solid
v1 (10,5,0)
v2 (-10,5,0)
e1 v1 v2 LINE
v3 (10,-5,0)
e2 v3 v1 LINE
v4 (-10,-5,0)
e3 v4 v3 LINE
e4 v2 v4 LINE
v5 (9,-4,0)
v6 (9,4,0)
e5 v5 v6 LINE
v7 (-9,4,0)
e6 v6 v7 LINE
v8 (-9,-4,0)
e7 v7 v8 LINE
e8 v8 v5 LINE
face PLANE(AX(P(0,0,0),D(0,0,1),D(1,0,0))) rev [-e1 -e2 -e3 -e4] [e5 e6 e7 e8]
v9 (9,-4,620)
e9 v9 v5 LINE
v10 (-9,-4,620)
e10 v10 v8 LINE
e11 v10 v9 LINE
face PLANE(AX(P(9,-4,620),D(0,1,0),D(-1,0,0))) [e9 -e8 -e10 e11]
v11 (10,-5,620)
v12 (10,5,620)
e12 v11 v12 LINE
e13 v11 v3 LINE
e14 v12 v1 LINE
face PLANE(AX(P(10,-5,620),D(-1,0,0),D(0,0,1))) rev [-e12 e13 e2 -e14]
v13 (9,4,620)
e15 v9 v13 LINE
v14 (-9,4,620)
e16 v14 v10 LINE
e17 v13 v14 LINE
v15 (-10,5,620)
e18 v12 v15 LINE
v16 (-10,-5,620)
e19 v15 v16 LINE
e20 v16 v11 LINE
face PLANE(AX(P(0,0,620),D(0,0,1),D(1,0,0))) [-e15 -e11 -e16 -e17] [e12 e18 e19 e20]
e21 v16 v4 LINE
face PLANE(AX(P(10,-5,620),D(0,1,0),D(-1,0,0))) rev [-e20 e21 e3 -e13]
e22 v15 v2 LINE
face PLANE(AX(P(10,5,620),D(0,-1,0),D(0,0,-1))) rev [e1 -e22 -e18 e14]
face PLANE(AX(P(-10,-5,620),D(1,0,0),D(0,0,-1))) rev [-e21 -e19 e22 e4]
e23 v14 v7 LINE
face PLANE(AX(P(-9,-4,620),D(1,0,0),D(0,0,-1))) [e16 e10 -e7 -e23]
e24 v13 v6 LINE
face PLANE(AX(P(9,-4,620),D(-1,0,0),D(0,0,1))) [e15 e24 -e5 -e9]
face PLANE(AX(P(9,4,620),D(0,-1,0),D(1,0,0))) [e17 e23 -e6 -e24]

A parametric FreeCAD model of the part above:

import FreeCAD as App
import Part
import Sketcher
from FreeCAD import Vector


def add_polygon(sketch, points):
    """Adds a closed chain of lines whose ends are joined by coincident constraints."""
    first, n = sketch.GeometryCount, len(points)
    for a, b in zip(points, points[1:] + points[:1]):
        sketch.addGeometry(Part.LineSegment(App.Vector(*a, 0), App.Vector(*b, 0)), False)
    for i in range(n):
        sketch.addConstraint(Sketcher.Constraint("Coincident", first + i, 2, first + (i + 1) % n, 1))

doc = App.newDocument("Part")
body = doc.addObject("PartDesign::Body", "Body")

# Sketch on XY plane
sketch1 = body.newObject("Sketcher::SketchObject", "Sketch")
sketch1.AttachmentSupport = (doc.getObject("XY_Plane"), [""])
sketch1.MapMode = "FlatFace"
add_polygon(sketch1, [(-10, 5), (-10, -5), (10, -5), (10, 5)])  # lines 0-3
add_polygon(sketch1, [(9, -4), (-9, -4), (-9, 4), (9, 4)])  # lines 4-7
sketch1.addConstraint([
    Sketcher.Constraint("Vertical", 0),
    Sketcher.Constraint("Horizontal", 1),
    Sketcher.Constraint("Vertical", 2),
    Sketcher.Constraint("Horizontal", 3),
    Sketcher.Constraint("Horizontal", 4),
    Sketcher.Constraint("Vertical", 5),
    Sketcher.Constraint("Horizontal", 6),
    Sketcher.Constraint("Vertical", 7),
    Sketcher.Constraint("Symmetric", 0, 2, 2, 2, -1, 1),
    Sketcher.Constraint("Symmetric", 4, 2, 6, 2, -1, 1),
    Sketcher.Constraint("DistanceX", 1, 1, 1, 2, 20.0),
    Sketcher.Constraint("DistanceX", 4, 2, 4, 1, 18.0),
    Sketcher.Constraint("DistanceY", 0, 2, 0, 1, 10.0),
    Sketcher.Constraint("DistanceY", 5, 1, 5, 2, 8.0),
])
pad1 = body.newObject("PartDesign::Pad", "Pad")
pad1.Profile = sketch1
pad1.Length = 620

doc.recompute()
